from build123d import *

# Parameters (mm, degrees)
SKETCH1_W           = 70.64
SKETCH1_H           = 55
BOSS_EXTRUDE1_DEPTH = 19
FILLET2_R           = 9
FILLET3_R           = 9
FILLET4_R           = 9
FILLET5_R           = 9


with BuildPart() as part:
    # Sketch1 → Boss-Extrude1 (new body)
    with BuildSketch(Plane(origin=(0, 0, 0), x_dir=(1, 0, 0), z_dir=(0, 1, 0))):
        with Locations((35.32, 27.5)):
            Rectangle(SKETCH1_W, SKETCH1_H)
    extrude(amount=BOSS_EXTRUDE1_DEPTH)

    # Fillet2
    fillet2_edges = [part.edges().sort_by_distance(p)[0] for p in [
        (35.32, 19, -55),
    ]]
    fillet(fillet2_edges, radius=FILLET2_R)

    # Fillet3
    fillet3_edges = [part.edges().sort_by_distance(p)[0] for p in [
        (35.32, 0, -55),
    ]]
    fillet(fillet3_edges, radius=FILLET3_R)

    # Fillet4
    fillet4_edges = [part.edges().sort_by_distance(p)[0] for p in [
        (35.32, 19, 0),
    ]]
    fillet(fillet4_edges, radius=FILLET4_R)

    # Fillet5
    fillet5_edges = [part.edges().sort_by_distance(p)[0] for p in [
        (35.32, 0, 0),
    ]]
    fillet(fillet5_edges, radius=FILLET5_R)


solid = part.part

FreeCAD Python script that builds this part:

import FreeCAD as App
import Part
import Sketcher

V = App.Vector


def edges_at(feature, points):
    """Names of the edges that pass closest to the given points."""
    edges = feature.Shape.Edges
    near = lambda p: min(range(len(edges)), key=lambda i: edges[i].distToShape(Part.Vertex(*p))[0])
    return sorted({f"Edge{near(p) + 1}" for p in points})

doc = App.newDocument("Part")
body = doc.addObject("PartDesign::Body", "Body")

sketch1 = body.newObject("Sketcher::SketchObject", "Sketch")
sketch1.AttachmentSupport = (doc.getObject("XZ_Plane"), [""])
sketch1.MapMode = "FlatFace"
sketch1.addGeometry([
    Part.LineSegment(V(0, -55, 0), V(0, 0, 0)),
    Part.LineSegment(V(0, 0, 0), V(71, 0, 0)),
    Part.LineSegment(V(71, 0, 0), V(71, -55, 0)),
    Part.LineSegment(V(71, -55, 0), V(0, -55, 0)),
], False)
sketch1.addConstraint([
    Sketcher.Constraint("Coincident", 0, 2, 1, 1),
    Sketcher.Constraint("Coincident", 1, 2, 2, 1),
    Sketcher.Constraint("Coincident", 2, 2, 3, 1),
    Sketcher.Constraint("Coincident", 3, 2, 0, 1),
    Sketcher.Constraint("Vertical", 0),
    Sketcher.Constraint("Horizontal", 1),
    Sketcher.Constraint("Vertical", 2),
    Sketcher.Constraint("Horizontal", 3),
    Sketcher.Constraint("Coincident", 0, 2, -1, 1),
    Sketcher.Constraint("DistanceY", 0, 1, 0, 2, 55.0),
    Sketcher.Constraint("DistanceX", 1, 1, 1, 2, 70.64),
])
pad1 = body.newObject("PartDesign::Pad", "Pad")
pad1.Profile = sketch1
pad1.Length = 19
pad1.Reversed = True
doc.recompute()

fillet = body.newObject("PartDesign::Fillet", "Fillet")
fillet.Base = (pad1, edges_at(pad1, [(35.32, 19, -55)]))
fillet.Radius = 9
doc.recompute()

fillet2 = body.newObject("PartDesign::Fillet", "Fillet001")
fillet2.Base = (fillet, edges_at(fillet, [(35.32, 0, -55)]))
fillet2.Radius = 9
doc.recompute()

fillet3 = body.newObject("PartDesign::Fillet", "Fillet002")
fillet3.Base = (fillet2, edges_at(fillet2, [(35.32, 19, 0)]))
fillet3.Radius = 9
doc.recompute()

fillet4 = body.newObject("PartDesign::Fillet", "Fillet003")
fillet4.Base = (fillet3, edges_at(fillet3, [(35.32, 0, 0)]))
fillet4.Radius = 9

doc.recompute()
